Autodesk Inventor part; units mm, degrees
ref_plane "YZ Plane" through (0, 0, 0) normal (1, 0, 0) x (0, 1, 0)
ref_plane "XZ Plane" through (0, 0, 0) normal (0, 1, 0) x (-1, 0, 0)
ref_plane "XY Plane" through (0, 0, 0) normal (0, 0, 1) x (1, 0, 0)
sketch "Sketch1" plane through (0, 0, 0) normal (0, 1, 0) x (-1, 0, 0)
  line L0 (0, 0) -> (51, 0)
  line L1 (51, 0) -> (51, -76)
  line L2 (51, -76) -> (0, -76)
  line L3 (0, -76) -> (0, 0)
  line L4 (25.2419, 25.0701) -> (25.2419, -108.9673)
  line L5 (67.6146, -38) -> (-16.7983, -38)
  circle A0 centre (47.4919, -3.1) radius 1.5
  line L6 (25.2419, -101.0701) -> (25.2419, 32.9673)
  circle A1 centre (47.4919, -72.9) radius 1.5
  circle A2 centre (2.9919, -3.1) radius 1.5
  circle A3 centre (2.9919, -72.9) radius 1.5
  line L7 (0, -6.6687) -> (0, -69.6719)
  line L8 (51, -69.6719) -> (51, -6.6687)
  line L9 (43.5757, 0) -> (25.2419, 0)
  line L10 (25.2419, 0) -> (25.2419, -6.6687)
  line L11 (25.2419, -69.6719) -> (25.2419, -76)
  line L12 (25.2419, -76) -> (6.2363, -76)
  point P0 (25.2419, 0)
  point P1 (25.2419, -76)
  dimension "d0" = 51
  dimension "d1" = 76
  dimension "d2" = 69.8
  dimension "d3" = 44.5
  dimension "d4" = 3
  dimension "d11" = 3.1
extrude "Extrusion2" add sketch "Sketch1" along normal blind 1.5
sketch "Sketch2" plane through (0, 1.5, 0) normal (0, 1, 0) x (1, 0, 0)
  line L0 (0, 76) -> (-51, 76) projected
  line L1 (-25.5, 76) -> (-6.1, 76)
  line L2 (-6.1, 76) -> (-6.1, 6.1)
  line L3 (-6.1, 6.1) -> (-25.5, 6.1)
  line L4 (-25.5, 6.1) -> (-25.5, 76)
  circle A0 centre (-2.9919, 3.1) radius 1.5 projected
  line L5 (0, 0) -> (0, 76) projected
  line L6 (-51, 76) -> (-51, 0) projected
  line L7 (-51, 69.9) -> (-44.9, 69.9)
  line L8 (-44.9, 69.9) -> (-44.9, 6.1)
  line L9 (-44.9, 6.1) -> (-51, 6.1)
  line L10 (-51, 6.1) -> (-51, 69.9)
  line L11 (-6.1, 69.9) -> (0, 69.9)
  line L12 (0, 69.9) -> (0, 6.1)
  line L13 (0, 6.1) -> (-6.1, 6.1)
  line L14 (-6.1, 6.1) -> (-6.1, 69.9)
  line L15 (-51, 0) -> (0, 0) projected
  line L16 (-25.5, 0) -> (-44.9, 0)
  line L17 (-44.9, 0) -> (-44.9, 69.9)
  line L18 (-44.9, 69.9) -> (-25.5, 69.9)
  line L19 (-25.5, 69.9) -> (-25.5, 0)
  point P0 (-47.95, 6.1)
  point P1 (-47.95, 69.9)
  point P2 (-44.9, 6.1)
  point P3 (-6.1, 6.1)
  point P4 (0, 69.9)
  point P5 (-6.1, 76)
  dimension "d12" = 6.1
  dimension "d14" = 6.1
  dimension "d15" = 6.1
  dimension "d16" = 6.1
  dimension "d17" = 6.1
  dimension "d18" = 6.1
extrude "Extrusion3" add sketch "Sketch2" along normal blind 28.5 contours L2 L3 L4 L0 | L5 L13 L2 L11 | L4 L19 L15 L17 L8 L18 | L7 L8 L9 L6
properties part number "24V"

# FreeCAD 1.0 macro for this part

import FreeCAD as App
import Part
import Sketcher
from FreeCAD import Vector


def add_polygon(sketch, points):
    """Adds a closed chain of lines whose ends are joined by coincident constraints."""
    first, n = sketch.GeometryCount, len(points)
    for a, b in zip(points, points[1:] + points[:1]):
        sketch.addGeometry(Part.LineSegment(App.Vector(*a, 0), App.Vector(*b, 0)), False)
    for i in range(n):
        sketch.addConstraint(Sketcher.Constraint("Coincident", first + i, 2, first + (i + 1) % n, 1))

doc = App.newDocument("Part")
body = doc.addObject("PartDesign::Body", "Body")

# Sketch on XZ plane
sketch1 = body.newObject("Sketcher::SketchObject", "Sketch")
sketch1.AttachmentSupport = (doc.getObject("XZ_Plane"), [""])
sketch1.MapMode = "FlatFace"
add_polygon(sketch1, [(0, 0), (0, -76), (-51, -76), (-51, 0)])  # lines 0-3
sketch1.addGeometry(Part.Circle(Vector(-3, -3.1, 0), Vector(0, 0, 1), 1.5), False)  # 4
sketch1.addGeometry(Part.Circle(Vector(-47.5, -3.1, 0), Vector(0, 0, 1), 1.5), False)  # 5
sketch1.addGeometry(Part.Circle(Vector(-3, -72.9, 0), Vector(0, 0, 1), 1.5), False)  # 6
sketch1.addGeometry(Part.Circle(Vector(-47.5, -72.9, 0), Vector(0, 0, 1), 1.5), False)  # 7
sketch1.addConstraint(Sketcher.Constraint("Vertical", 0))
sketch1.addConstraint(Sketcher.Constraint("Horizontal", 1))
sketch1.addConstraint(Sketcher.Constraint("Vertical", 2))
sketch1.addConstraint(Sketcher.Constraint("Horizontal", 3))
sketch1.addConstraint(Sketcher.Constraint("Coincident", 3, 2, -1, 1))
sketch1.addConstraint(Sketcher.Constraint("Equal", 4, 5))
sketch1.addConstraint(Sketcher.Constraint("Equal", 5, 6))
sketch1.addConstraint(Sketcher.Constraint("Equal", 6, 7))
sketch1.addConstraint(Sketcher.Constraint("Horizontal", 4, 3, 5, 3))
sketch1.addConstraint(Sketcher.Constraint("Horizontal", 6, 3, 7, 3))
sketch1.addConstraint(Sketcher.Constraint("Vertical", 4, 3, 6, 3))
sketch1.addConstraint(Sketcher.Constraint("Vertical", 5, 3, 7, 3))
sketch1.addConstraint(Sketcher.Constraint("Diameter", 4, 3.0))
sketch1.addConstraint(Sketcher.Constraint("DistanceX", 1, 2, 1, 1, 51.0))
sketch1.addConstraint(Sketcher.Constraint("DistanceY", 0, 2, 0, 1, 76.0))
sketch1.addConstraint(Sketcher.Constraint("DistanceY", 4, 3, -1, 1, 3.1))
sketch1.addConstraint(Sketcher.Constraint("DistanceX", 5, 3, 4, 3, 44.5))
sketch1.addConstraint(Sketcher.Constraint("DistanceY", 6, 3, 4, 3, 69.8))
sketch1.addConstraint(Sketcher.Constraint("DistanceX", 4, 3, -1, 1, 2.992))
pad1 = body.newObject("PartDesign::Pad", "Pad")
pad1.Profile = sketch1
pad1.Length = 1.5
pad1.Reversed = True

# Sketch on XZ plane
sketch2 = body.newObject("Sketcher::SketchObject", "Sketch001")
sketch2.AttachmentSupport = (doc.getObject("XZ_Plane"), [""])
sketch2.MapMode = "FlatFace"
sketch2.AttachmentOffset = App.Placement(Vector(0, 0, -1.5), App.Rotation())
add_polygon(sketch2, [(-6, -70), (-6, -76), (-26, -76), (-26, -70), (-51, -70), (-51, -6), (-45, -6), (-45, 0), (-26, 0), (-26, -6), (0, -6), (0, -70)])  # lines 0-11
sketch2.addConstraint(Sketcher.Constraint("Vertical", 0))
sketch2.addConstraint(Sketcher.Constraint("Horizontal", 1))
sketch2.addConstraint(Sketcher.Constraint("Vertical", 2))
sketch2.addConstraint(Sketcher.Constraint("Horizontal", 3))
sketch2.addConstraint(Sketcher.Constraint("Vertical", 4))
sketch2.addConstraint(Sketcher.Constraint("Horizontal", 5))
sketch2.addConstraint(Sketcher.Constraint("Vertical", 6))
sketch2.addConstraint(Sketcher.Constraint("Horizontal", 7))
sketch2.addConstraint(Sketcher.Constraint("Vertical", 8))
sketch2.addConstraint(Sketcher.Constraint("Horizontal", 9))
sketch2.addConstraint(Sketcher.Constraint("Vertical", 10))
sketch2.addConstraint(Sketcher.Constraint("Horizontal", 11))
sketch2.addConstraint(Sketcher.Constraint("PointOnObject", 6, 2, -1))
sketch2.addConstraint(Sketcher.Constraint("PointOnObject", 9, 2, -2))
sketch2.addConstraint(Sketcher.Constraint("Horizontal", 5, 2, 8, 2))
sketch2.addConstraint(Sketcher.Constraint("Horizontal", 3, 2, 10, 2))
sketch2.addConstraint(Sketcher.Constraint("Vertical", 2, 2, 7, 2))
sketch2.addConstraint(Sketcher.Constraint("Equal", 1, 7))
sketch2.addConstraint(Sketcher.Constraint("Equal", 3, 9))
sketch2.addConstraint(Sketcher.Constraint("Equal", 11, 0))
sketch2.addConstraint(Sketcher.Constraint("Equal", 2, 6))
sketch2.addConstraint(Sketcher.Constraint("DistanceX", 5, 1, 5, 2, 6.1))
sketch2.addConstraint(Sketcher.Constraint("DistanceX", 1, 2, 1, 1, 19.4))
sketch2.addConstraint(Sketcher.Constraint("DistanceY", 4, 1, 4, 2, 63.8))
pad2 = body.newObject("PartDesign::Pad", "Pad001")
pad2.Profile = sketch2
pad2.Length = 28.5
pad2.Reversed = True

doc.recompute()
